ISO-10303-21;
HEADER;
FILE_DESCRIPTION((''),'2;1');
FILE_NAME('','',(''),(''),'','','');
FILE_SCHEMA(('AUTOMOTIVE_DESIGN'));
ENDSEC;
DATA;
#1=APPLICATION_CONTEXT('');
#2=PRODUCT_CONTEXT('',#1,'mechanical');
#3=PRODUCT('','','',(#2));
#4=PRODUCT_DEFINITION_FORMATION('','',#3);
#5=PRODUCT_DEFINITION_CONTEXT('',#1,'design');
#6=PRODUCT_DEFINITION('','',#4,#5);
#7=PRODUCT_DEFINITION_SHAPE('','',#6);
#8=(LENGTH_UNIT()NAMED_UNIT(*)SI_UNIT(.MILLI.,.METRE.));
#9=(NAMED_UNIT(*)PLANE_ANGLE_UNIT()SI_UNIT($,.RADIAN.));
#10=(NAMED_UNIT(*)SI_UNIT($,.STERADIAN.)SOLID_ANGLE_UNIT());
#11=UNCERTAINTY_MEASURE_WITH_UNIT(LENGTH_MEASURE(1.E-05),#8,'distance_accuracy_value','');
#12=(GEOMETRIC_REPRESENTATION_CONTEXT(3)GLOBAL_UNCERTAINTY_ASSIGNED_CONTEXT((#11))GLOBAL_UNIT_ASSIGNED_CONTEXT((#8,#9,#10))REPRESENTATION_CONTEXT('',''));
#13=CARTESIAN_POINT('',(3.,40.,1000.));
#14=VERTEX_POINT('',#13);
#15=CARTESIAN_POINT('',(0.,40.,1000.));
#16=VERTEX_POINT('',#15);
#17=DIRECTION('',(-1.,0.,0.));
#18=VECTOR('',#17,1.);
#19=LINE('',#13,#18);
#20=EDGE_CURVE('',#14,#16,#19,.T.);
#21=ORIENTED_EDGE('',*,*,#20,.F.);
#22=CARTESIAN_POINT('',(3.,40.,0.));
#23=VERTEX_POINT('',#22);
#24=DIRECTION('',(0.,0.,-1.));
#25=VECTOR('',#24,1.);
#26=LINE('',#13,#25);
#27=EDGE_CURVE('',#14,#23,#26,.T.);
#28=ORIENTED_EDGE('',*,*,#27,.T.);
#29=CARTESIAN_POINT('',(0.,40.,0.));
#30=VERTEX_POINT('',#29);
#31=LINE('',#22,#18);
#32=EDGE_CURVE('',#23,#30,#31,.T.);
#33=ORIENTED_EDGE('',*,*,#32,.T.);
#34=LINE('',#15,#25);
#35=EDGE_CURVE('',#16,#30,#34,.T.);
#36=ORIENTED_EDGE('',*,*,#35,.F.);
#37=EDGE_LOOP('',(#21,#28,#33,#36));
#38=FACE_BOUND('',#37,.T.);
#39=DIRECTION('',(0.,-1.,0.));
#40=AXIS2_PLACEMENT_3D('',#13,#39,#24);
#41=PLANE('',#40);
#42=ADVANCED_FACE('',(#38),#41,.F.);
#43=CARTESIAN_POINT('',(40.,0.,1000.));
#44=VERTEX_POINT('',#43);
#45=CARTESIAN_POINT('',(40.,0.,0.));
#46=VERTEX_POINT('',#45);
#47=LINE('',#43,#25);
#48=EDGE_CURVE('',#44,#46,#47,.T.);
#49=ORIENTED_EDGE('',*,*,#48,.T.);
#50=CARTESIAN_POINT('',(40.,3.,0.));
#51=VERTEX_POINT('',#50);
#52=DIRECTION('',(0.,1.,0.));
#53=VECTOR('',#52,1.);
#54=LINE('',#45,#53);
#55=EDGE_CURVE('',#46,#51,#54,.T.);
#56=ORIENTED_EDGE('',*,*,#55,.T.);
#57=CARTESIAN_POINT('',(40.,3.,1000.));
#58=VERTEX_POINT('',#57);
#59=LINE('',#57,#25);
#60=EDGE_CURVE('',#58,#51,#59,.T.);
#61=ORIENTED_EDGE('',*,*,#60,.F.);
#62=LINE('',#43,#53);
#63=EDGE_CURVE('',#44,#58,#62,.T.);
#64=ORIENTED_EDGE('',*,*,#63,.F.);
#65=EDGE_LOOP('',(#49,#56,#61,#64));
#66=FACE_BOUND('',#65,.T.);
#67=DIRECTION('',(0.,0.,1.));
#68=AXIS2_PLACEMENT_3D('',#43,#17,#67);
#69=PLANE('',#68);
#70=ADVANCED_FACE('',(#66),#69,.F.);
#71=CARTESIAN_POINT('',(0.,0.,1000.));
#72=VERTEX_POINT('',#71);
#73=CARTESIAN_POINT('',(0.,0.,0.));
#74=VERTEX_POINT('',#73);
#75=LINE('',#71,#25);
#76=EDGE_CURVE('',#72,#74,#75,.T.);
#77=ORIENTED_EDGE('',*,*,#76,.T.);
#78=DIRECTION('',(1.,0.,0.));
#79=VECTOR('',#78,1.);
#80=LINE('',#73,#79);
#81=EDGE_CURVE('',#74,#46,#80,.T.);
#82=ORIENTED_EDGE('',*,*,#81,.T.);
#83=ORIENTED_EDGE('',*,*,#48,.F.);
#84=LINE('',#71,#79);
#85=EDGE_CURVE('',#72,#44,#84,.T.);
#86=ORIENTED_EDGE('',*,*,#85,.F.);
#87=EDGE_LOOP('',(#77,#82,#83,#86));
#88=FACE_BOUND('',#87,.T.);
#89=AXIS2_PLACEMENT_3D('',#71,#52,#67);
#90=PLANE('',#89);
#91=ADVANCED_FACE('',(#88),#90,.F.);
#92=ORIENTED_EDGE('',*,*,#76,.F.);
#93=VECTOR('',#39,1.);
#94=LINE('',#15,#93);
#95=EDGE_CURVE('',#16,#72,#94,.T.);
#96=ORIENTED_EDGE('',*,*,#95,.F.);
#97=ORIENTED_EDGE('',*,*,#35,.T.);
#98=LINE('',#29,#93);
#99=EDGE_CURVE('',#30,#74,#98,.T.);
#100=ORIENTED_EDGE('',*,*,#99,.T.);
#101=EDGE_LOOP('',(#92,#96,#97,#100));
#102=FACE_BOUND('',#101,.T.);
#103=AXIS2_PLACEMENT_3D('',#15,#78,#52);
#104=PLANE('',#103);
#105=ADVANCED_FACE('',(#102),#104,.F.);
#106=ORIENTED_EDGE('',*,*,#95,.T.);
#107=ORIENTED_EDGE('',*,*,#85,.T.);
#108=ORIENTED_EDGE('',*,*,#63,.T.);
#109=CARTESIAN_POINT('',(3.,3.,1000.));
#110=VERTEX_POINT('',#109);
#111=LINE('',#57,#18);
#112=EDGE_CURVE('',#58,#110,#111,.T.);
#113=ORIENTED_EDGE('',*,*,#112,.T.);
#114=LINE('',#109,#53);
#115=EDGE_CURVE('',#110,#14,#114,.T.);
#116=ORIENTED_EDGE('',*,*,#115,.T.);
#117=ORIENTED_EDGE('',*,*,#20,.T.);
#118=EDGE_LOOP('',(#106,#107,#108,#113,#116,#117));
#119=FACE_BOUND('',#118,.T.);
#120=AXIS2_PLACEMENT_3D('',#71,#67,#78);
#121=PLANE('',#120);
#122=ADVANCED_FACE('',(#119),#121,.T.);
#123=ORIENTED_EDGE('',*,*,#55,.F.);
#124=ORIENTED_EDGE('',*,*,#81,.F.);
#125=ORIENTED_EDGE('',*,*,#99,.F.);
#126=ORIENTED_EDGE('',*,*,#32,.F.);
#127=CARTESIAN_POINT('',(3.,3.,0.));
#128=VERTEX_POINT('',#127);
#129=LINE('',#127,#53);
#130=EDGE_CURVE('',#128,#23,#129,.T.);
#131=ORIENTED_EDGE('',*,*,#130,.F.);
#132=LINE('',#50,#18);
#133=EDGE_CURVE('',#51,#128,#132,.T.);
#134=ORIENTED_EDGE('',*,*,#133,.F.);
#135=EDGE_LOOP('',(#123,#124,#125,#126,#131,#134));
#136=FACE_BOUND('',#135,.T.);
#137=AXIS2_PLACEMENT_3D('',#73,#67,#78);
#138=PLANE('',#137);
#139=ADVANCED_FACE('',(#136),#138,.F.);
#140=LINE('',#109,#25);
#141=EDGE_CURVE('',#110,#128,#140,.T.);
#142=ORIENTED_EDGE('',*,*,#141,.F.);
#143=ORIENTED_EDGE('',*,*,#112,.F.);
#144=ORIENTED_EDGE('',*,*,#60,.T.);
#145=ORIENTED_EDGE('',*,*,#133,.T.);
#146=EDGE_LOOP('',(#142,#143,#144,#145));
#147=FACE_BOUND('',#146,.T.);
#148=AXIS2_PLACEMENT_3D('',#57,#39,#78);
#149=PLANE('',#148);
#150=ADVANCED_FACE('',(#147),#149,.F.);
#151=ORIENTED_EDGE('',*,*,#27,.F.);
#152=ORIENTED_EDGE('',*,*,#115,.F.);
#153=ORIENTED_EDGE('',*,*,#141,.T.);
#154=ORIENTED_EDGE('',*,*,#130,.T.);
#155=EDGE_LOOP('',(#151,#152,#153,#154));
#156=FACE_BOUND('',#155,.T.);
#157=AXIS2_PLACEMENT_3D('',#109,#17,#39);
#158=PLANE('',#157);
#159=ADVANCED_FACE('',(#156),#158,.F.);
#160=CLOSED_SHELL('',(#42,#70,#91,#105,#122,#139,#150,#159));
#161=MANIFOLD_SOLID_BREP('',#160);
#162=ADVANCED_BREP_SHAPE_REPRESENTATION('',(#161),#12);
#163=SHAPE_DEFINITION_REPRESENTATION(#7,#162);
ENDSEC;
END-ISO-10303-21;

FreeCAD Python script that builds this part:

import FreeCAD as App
import Part
import Sketcher
Q = App.Units.Quantity


def add_polygon(sketch, points):
    """Adds a closed chain of lines whose ends are joined by coincident constraints."""
    first, n = sketch.GeometryCount, len(points)
    for a, b in zip(points, points[1:] + points[:1]):
        sketch.addGeometry(Part.LineSegment(App.Vector(*a, 0), App.Vector(*b, 0)), False)
    for i in range(n):
        sketch.addConstraint(Sketcher.Constraint("Coincident", first + i, 2, first + (i + 1) % n, 1))

doc = App.newDocument("Part")
body = doc.addObject("PartDesign::Body", "Body")

# Sketch on XY plane
sketch1 = body.newObject("Sketcher::SketchObject", "Sketch")
sketch1.AttachmentSupport = (doc.getObject("XY_Plane"), [""])
sketch1.MapMode = "FlatFace"
add_polygon(sketch1, [(0, 40), (0, 0), (40, 0), (40, 3), (3, 3), (3, 40)])  # lines 0-5
sketch1.addConstraint(Sketcher.Constraint("Vertical", 0))
sketch1.addConstraint(Sketcher.Constraint("Horizontal", 1))
sketch1.addConstraint(Sketcher.Constraint("Vertical", 2))
sketch1.addConstraint(Sketcher.Constraint("Horizontal", 3))
sketch1.addConstraint(Sketcher.Constraint("Vertical", 4))
sketch1.addConstraint(Sketcher.Constraint("Horizontal", 5))
sketch1.addConstraint(Sketcher.Constraint("Coincident", 0, 2, -1, 1))
sketch1.addConstraint(Sketcher.Constraint("Equal", 1, 0))
sketch1.addConstraint(Sketcher.Constraint("Equal", 5, 2))
sketch1.addConstraint(Sketcher.Constraint("DistanceX", 1, 1, 1, 2, Q("40 mm")))
sketch1.addConstraint(Sketcher.Constraint("DistanceX", 3, 2, 3, 1, Q("37 mm")))
pad1 = body.newObject("PartDesign::Pad", "Pad")
pad1.Profile = sketch1
pad1.Length = 1000

doc.recompute()
